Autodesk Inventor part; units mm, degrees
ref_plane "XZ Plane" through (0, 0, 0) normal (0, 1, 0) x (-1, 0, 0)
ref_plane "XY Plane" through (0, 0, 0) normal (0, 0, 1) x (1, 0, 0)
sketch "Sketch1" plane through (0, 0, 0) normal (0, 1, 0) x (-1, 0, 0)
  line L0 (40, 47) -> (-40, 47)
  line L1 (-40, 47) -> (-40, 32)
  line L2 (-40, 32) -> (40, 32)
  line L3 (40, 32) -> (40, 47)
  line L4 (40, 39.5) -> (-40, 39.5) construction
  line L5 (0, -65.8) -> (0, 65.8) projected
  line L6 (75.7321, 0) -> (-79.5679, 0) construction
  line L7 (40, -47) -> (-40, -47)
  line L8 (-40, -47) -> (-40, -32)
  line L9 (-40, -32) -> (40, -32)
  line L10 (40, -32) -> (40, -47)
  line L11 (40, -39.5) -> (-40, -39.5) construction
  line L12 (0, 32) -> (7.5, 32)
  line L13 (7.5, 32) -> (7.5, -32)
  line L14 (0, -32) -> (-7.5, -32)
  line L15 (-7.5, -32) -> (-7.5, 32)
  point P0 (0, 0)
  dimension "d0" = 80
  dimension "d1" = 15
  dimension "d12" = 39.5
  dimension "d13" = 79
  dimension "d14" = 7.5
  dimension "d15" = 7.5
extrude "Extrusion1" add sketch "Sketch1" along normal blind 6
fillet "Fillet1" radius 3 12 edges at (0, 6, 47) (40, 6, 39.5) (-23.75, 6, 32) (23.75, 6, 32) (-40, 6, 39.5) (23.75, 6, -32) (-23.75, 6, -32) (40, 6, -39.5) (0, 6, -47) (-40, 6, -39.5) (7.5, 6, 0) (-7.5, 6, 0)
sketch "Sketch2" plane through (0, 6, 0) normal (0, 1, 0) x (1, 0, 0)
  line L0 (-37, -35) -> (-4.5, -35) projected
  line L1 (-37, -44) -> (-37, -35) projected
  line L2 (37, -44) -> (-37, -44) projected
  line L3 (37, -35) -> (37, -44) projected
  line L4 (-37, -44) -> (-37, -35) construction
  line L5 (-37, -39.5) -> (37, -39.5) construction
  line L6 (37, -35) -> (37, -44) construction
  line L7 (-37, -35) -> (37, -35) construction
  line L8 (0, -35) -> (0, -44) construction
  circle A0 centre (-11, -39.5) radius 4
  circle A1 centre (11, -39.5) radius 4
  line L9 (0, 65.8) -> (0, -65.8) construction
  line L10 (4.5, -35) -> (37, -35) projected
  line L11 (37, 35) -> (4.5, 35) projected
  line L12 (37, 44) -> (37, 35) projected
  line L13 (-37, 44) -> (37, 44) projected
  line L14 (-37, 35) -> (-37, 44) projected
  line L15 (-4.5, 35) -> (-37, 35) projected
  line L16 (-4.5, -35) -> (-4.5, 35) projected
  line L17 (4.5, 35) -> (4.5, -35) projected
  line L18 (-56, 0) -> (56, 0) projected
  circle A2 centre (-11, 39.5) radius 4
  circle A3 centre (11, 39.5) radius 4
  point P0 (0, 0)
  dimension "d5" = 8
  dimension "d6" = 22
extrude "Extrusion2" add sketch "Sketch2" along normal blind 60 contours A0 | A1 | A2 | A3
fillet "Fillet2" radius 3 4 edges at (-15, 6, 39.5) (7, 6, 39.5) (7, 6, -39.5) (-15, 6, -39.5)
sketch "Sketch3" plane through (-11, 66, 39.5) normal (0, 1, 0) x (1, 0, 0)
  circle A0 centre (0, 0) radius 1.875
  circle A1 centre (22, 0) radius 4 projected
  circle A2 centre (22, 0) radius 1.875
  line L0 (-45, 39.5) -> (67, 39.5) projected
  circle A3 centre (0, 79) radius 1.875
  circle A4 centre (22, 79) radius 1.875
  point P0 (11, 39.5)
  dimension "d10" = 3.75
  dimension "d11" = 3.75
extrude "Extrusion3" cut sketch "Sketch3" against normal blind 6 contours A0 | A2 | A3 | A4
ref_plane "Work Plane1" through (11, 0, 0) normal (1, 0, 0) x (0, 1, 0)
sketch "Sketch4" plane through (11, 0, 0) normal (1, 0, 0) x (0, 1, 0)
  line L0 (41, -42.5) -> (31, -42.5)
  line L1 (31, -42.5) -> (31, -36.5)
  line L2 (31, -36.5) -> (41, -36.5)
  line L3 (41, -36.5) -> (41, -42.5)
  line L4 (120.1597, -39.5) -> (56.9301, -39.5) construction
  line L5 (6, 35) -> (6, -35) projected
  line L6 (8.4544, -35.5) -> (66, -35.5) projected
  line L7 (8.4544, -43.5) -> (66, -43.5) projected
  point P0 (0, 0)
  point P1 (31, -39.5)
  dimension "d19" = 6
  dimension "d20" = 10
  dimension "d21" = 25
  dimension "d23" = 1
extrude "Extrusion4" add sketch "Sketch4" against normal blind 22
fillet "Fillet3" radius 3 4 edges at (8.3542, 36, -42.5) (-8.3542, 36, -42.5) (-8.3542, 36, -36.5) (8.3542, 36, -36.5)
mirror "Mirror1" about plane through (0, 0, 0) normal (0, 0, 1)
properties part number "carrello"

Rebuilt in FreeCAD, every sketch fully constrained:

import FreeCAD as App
import Part
import Sketcher
Q = App.Units.Quantity


def edges_at(feature, points):
    """Names of the edges that pass closest to the given points."""
    edges = feature.Shape.Edges
    near = lambda p: min(range(len(edges)), key=lambda i: edges[i].distToShape(Part.Vertex(*p))[0])
    return sorted({f"Edge{near(p) + 1}" for p in points})

doc = App.newDocument("Part")
params = doc.addObject("Spreadsheet::Sheet", "Params")
for row, (alias, value) in enumerate([
    ("sketch1_width", "80 mm"),
    ("sketch1_height", "15 mm"),
    ("pad1_length", "6 mm"),
    ("fillet_radius", "3 mm"),
    ("sketch2_diameter", "8 mm"),
    ("pad2_length", "60 mm"),
    ("fillet2_radius", "3 mm"),
    ("sketch3_diameter", "3.75 mm"),
    ("pocket1_length", "6 mm"),
    ("sketch4_width", "10 mm"),
    ("sketch4_height", "6 mm"),
    ("pad3_length", "22 mm"),
    ("fillet3_radius", "3 mm"),
], start=1):
    params.set(f"A{row}", alias)
    params.set(f"B{row}", "=" + value)
    params.setAlias(f"B{row}", alias)

body = doc.addObject("PartDesign::Body", "Body")

sketch1 = body.newObject("Sketcher::SketchObject", "Sketch")
sketch1.AttachmentSupport = (doc.getObject("XZ_Plane"), [""])
sketch1.MapMode = "FlatFace"
sketch1.addGeometry(Part.LineSegment(App.Vector(-40, 32, 0), App.Vector(-40, 47, 0)), False)
sketch1.addGeometry(Part.LineSegment(App.Vector(-40, 47, 0), App.Vector(40, 47, 0)), False)
sketch1.addGeometry(Part.LineSegment(App.Vector(40, 47, 0), App.Vector(40, 32, 0)), False)
sketch1.addGeometry(Part.LineSegment(App.Vector(40, 32, 0), App.Vector(8, 32, 0)), False)
sketch1.addGeometry(Part.LineSegment(App.Vector(8, 32, 0), App.Vector(8, -32, 0)), False)
sketch1.addGeometry(Part.LineSegment(App.Vector(8, -32, 0), App.Vector(40, -32, 0)), False)
sketch1.addGeometry(Part.LineSegment(App.Vector(40, -32, 0), App.Vector(40, -47, 0)), False)
sketch1.addGeometry(Part.LineSegment(App.Vector(40, -47, 0), App.Vector(-40, -47, 0)), False)
sketch1.addGeometry(Part.LineSegment(App.Vector(-40, -47, 0), App.Vector(-40, -32, 0)), False)
sketch1.addGeometry(Part.LineSegment(App.Vector(-40, -32, 0), App.Vector(-8, -32, 0)), False)
sketch1.addGeometry(Part.LineSegment(App.Vector(-8, -32, 0), App.Vector(-8, 32, 0)), False)
sketch1.addGeometry(Part.LineSegment(App.Vector(-8, 32, 0), App.Vector(-40, 32, 0)), False)
sketch1.addConstraint(Sketcher.Constraint("Coincident", 0, 2, 1, 1))
sketch1.addConstraint(Sketcher.Constraint("Coincident", 1, 2, 2, 1))
sketch1.addConstraint(Sketcher.Constraint("Coincident", 2, 2, 3, 1))
sketch1.addConstraint(Sketcher.Constraint("Coincident", 3, 2, 4, 1))
sketch1.addConstraint(Sketcher.Constraint("Coincident", 4, 2, 5, 1))
sketch1.addConstraint(Sketcher.Constraint("Coincident", 5, 2, 6, 1))
sketch1.addConstraint(Sketcher.Constraint("Coincident", 6, 2, 7, 1))
sketch1.addConstraint(Sketcher.Constraint("Coincident", 7, 2, 8, 1))
sketch1.addConstraint(Sketcher.Constraint("Coincident", 8, 2, 9, 1))
sketch1.addConstraint(Sketcher.Constraint("Coincident", 9, 2, 10, 1))
sketch1.addConstraint(Sketcher.Constraint("Coincident", 10, 2, 11, 1))
sketch1.addConstraint(Sketcher.Constraint("Coincident", 11, 2, 0, 1))
sketch1.addConstraint(Sketcher.Constraint("Vertical", 0))
sketch1.addConstraint(Sketcher.Constraint("Horizontal", 1))
sketch1.addConstraint(Sketcher.Constraint("Vertical", 2))
sketch1.addConstraint(Sketcher.Constraint("Horizontal", 3))
sketch1.addConstraint(Sketcher.Constraint("Vertical", 4))
sketch1.addConstraint(Sketcher.Constraint("Horizontal", 5))
sketch1.addConstraint(Sketcher.Constraint("Vertical", 6))
sketch1.addConstraint(Sketcher.Constraint("Horizontal", 7))
sketch1.addConstraint(Sketcher.Constraint("Vertical", 8))
sketch1.addConstraint(Sketcher.Constraint("Horizontal", 9))
sketch1.addConstraint(Sketcher.Constraint("Vertical", 10))
sketch1.addConstraint(Sketcher.Constraint("Horizontal", 11))
sketch1.addConstraint(Sketcher.Constraint("Symmetric", 0, 2, 6, 2, -1, 1))
sketch1.addConstraint(Sketcher.Constraint("Symmetric", 2, 2, 8, 2, -1, 1))
sketch1.addConstraint(Sketcher.Constraint("Symmetric", 4, 2, 10, 2, -1, 1))
sketch1.addConstraint(Sketcher.Constraint("Symmetric", 5, 2, 8, 2, -2))
sketch1.addConstraint(Sketcher.Constraint("DistanceX", 1, 1, 1, 2, Q("80 mm")))
sketch1.addConstraint(Sketcher.Constraint("DistanceY", 0, 1, 0, 2, Q("15 mm")))
sketch1.addConstraint(Sketcher.Constraint("DistanceY", 4, 2, 1, 2, Q("79 mm")))
sketch1.addConstraint(Sketcher.Constraint("DistanceX", 9, 2, 4, 2, Q("15 mm")))
sketch1.setExpression("Constraints[28]", "Params.sketch1_width")
sketch1.setExpression("Constraints[29]", "Params.sketch1_height")
pad1 = body.newObject("PartDesign::Pad", "Pad")
pad1.Profile = sketch1
pad1.setExpression("Length", "Params.pad1_length")
pad1.Reversed = True
doc.recompute()

fillet = body.newObject("PartDesign::Fillet", "Fillet")
fillet.Base = (pad1, edges_at(pad1, [
    (0, 6, 47),
    (40, 6, 39.5),
    (-23.75, 6, 32),
    (23.75, 6, 32),
    (-40, 6, 39.5),
    (23.75, 6, -32),
    (-23.75, 6, -32),
    (40, 6, -39.5),
    (0, 6, -47),
    (-40, 6, -39.5),
    (7.5, 6, 0),
    (-7.5, 6, 0),
]))
fillet.setExpression("Radius", "Params.fillet_radius")

sketch2 = body.newObject("Sketcher::SketchObject", "Sketch001")
sketch2.AttachmentSupport = (doc.getObject("XZ_Plane"), [""])
sketch2.MapMode = "FlatFace"
sketch2.AttachmentOffset = App.Placement(App.Vector(0, 0, -6), App.Rotation())
sketch2.addGeometry(Part.Circle(App.Vector(-11, 39.5, 0), App.Vector(0, 0, 1), 4), False)
sketch2.addGeometry(Part.Circle(App.Vector(11, 39.5, 0), App.Vector(0, 0, 1), 4), False)
sketch2.addGeometry(Part.Circle(App.Vector(-11, -39.5, 0), App.Vector(0, 0, 1), 4), False)
sketch2.addGeometry(Part.Circle(App.Vector(11, -39.5, 0), App.Vector(0, 0, 1), 4), False)
sketch2.addConstraint(Sketcher.Constraint("Equal", 0, 1))
sketch2.addConstraint(Sketcher.Constraint("Equal", 1, 2))
sketch2.addConstraint(Sketcher.Constraint("Equal", 2, 3))
sketch2.addConstraint(Sketcher.Constraint("Symmetric", 1, 3, 2, 3, -1, 1))
sketch2.addConstraint(Sketcher.Constraint("Symmetric", 0, 3, 3, 3, -1, 1))
sketch2.addConstraint(Sketcher.Constraint("Symmetric", 0, 3, 1, 3, -2))
sketch2.addConstraint(Sketcher.Constraint("Diameter", 0, Q("8 mm")))
sketch2.addConstraint(Sketcher.Constraint("DistanceX", 0, 3, 1, 3, Q("22 mm")))
sketch2.addConstraint(Sketcher.Constraint("DistanceY", 2, 3, 0, 3, Q("79 mm")))
sketch2.setExpression("Constraints[6]", "Params.sketch2_diameter")
pad2 = body.newObject("PartDesign::Pad", "Pad001")
pad2.Profile = sketch2
pad2.setExpression("Length", "Params.pad2_length")
pad2.Reversed = True
doc.recompute()

fillet2 = body.newObject("PartDesign::Fillet", "Fillet001")
fillet2.Base = (pad2, edges_at(pad2, [
    (-15, 6, 39.5),
    (7, 6, 39.5),
    (7, 6, -39.5),
    (-15, 6, -39.5),
]))
fillet2.setExpression("Radius", "Params.fillet2_radius")

sketch3 = body.newObject("Sketcher::SketchObject", "Sketch002")
sketch3.AttachmentSupport = (doc.getObject("XZ_Plane"), [""])
sketch3.MapMode = "FlatFace"
sketch3.AttachmentOffset = App.Placement(App.Vector(0, 0, -66), App.Rotation())
sketch3.addGeometry(Part.Circle(App.Vector(-11, 39.5, 0), App.Vector(0, 0, 1), 1.9), False)
sketch3.addGeometry(Part.Circle(App.Vector(11, 39.5, 0), App.Vector(0, 0, 1), 1.9), False)
sketch3.addGeometry(Part.Circle(App.Vector(-11, -39.5, 0), App.Vector(0, 0, 1), 1.9), False)
sketch3.addGeometry(Part.Circle(App.Vector(11, -39.5, 0), App.Vector(0, 0, 1), 1.9), False)
sketch3.addConstraint(Sketcher.Constraint("Equal", 0, 1))
sketch3.addConstraint(Sketcher.Constraint("Equal", 1, 2))
sketch3.addConstraint(Sketcher.Constraint("Equal", 2, 3))
sketch3.addConstraint(Sketcher.Constraint("Symmetric", 1, 3, 2, 3, -1, 1))
sketch3.addConstraint(Sketcher.Constraint("Symmetric", 0, 3, 3, 3, -1, 1))
sketch3.addConstraint(Sketcher.Constraint("Symmetric", 0, 3, 1, 3, -2))
sketch3.addConstraint(Sketcher.Constraint("Diameter", 0, Q("3.75 mm")))
sketch3.addConstraint(Sketcher.Constraint("DistanceX", 0, 3, -1, 1, Q("11 mm")))
sketch3.addConstraint(Sketcher.Constraint("DistanceY", 2, 3, 0, 3, Q("79 mm")))
sketch3.setExpression("Constraints[6]", "Params.sketch3_diameter")
pocket1 = body.newObject("PartDesign::Pocket", "Pocket")
pocket1.Profile = sketch3
pocket1.setExpression("Length", "Params.pocket1_length")
pocket1.Reversed = True

sketch4 = body.newObject("Sketcher::SketchObject", "Sketch003")
sketch4.AttachmentSupport = (doc.getObject("YZ_Plane"), [""])
sketch4.MapMode = "FlatFace"
sketch4.AttachmentOffset = App.Placement(App.Vector(0, 0, 11), App.Rotation())
sketch4.addGeometry(Part.LineSegment(App.Vector(31, -42, 0), App.Vector(41, -42, 0)), False)
sketch4.addGeometry(Part.LineSegment(App.Vector(41, -42, 0), App.Vector(41, -36, 0)), False)
sketch4.addGeometry(Part.LineSegment(App.Vector(41, -36, 0), App.Vector(31, -36, 0)), False)
sketch4.addGeometry(Part.LineSegment(App.Vector(31, -36, 0), App.Vector(31, -42, 0)), False)
sketch4.addConstraint(Sketcher.Constraint("Coincident", 0, 2, 1, 1))
sketch4.addConstraint(Sketcher.Constraint("Coincident", 1, 2, 2, 1))
sketch4.addConstraint(Sketcher.Constraint("Coincident", 2, 2, 3, 1))
sketch4.addConstraint(Sketcher.Constraint("Coincident", 3, 2, 0, 1))
sketch4.addConstraint(Sketcher.Constraint("Horizontal", 0))
sketch4.addConstraint(Sketcher.Constraint("Vertical", 1))
sketch4.addConstraint(Sketcher.Constraint("Horizontal", 2))
sketch4.addConstraint(Sketcher.Constraint("Vertical", 3))
sketch4.addConstraint(Sketcher.Constraint("DistanceX", 0, 1, 0, 2, Q("10 mm")))
sketch4.addConstraint(Sketcher.Constraint("DistanceY", 1, 1, 1, 2, Q("6 mm")))
sketch4.addConstraint(Sketcher.Constraint("DistanceX", -1, 1, 0, 2, Q("41 mm")))
sketch4.addConstraint(Sketcher.Constraint("DistanceY", 0, 2, -1, 1, Q("42.5 mm")))
sketch4.setExpression("Constraints[8]", "Params.sketch4_width")
sketch4.setExpression("Constraints[9]", "Params.sketch4_height")
pad3 = body.newObject("PartDesign::Pad", "Pad002")
pad3.Profile = sketch4
pad3.setExpression("Length", "Params.pad3_length")
pad3.Reversed = True
doc.recompute()

fillet3 = body.newObject("PartDesign::Fillet", "Fillet002")
fillet3.Base = (pad3, edges_at(pad3, [
    (8.354, 36, -42.5),
    (-8.354, 36, -42.5),
    (-8.354, 36, -36.5),
    (8.354, 36, -36.5),
]))
fillet3.setExpression("Radius", "Params.fillet3_radius")
doc.recompute()

mirrored = body.newObject("PartDesign::Mirrored", "Mirrored")
mirrored.TransformMode = "Transform body"
mirrored.MirrorPlane = (doc.getObject("XY_Plane"), [""])
body.Tip = mirrored

doc.recompute()
